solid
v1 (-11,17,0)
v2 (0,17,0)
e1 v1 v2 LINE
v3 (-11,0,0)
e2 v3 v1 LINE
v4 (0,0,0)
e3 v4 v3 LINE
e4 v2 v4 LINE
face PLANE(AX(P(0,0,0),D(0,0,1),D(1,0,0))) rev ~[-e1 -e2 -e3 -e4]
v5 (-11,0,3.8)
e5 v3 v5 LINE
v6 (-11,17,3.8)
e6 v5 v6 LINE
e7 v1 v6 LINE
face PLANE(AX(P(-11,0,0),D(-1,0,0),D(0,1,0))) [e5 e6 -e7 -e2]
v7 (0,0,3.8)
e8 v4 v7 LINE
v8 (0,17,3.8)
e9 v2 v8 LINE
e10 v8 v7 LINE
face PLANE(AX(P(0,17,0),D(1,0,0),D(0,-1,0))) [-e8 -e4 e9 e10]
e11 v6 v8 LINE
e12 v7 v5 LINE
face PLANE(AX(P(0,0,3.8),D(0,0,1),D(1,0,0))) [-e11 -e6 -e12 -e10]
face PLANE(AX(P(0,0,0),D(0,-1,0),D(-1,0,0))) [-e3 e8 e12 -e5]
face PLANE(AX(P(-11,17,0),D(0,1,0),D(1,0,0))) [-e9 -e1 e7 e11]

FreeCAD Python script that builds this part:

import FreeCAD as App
import Part
import Sketcher
from FreeCAD import Vector
Q = App.Units.Quantity


def add_polygon(sketch, points):
    """Adds a closed chain of lines whose ends are joined by coincident constraints."""
    first, n = sketch.GeometryCount, len(points)
    for a, b in zip(points, points[1:] + points[:1]):
        sketch.addGeometry(Part.LineSegment(App.Vector(*a, 0), App.Vector(*b, 0)), False)
    for i in range(n):
        sketch.addConstraint(Sketcher.Constraint("Coincident", first + i, 2, first + (i + 1) % n, 1))

doc = App.newDocument("Part")
params = doc.addObject("Spreadsheet::Sheet", "Params")
for row, (alias, value) in enumerate([
    ("sketch1_width", "11 mm"),
    ("sketch1_height", "17 mm"),
    ("pad1_length", "3.8 mm"),
], start=1):
    params.set(f"A{row}", alias)
    params.set(f"B{row}", "=" + value)
    params.setAlias(f"B{row}", alias)

body = doc.addObject("PartDesign::Body", "Body")

# Sketch on XY plane
sketch1 = body.newObject("Sketcher::SketchObject", "Sketch")
sketch1.AttachmentSupport = (doc.getObject("XY_Plane"), [""])
sketch1.MapMode = "FlatFace"
add_polygon(sketch1, [(-11, 0), (0, 0), (0, 17), (-11, 17)])  # lines 0-3
sketch1.addConstraint([
    Sketcher.Constraint("Horizontal", 0),
    Sketcher.Constraint("Vertical", 1),
    Sketcher.Constraint("Horizontal", 2),
    Sketcher.Constraint("Vertical", 3),
    Sketcher.Constraint("Coincident", 0, 2, -1, 1),
    Sketcher.Constraint("DistanceX", 0, 1, 0, 2, Q("11 mm")),
    Sketcher.Constraint("DistanceY", 1, 1, 1, 2, Q("17 mm")),
])
sketch1.setExpression("Constraints[9]", "Params.sketch1_width")
sketch1.setExpression("Constraints[10]", "Params.sketch1_height")
pad1 = body.newObject("PartDesign::Pad", "Pad")
pad1.Profile = sketch1
pad1.setExpression("Length", "Params.pad1_length")

doc.recompute()
